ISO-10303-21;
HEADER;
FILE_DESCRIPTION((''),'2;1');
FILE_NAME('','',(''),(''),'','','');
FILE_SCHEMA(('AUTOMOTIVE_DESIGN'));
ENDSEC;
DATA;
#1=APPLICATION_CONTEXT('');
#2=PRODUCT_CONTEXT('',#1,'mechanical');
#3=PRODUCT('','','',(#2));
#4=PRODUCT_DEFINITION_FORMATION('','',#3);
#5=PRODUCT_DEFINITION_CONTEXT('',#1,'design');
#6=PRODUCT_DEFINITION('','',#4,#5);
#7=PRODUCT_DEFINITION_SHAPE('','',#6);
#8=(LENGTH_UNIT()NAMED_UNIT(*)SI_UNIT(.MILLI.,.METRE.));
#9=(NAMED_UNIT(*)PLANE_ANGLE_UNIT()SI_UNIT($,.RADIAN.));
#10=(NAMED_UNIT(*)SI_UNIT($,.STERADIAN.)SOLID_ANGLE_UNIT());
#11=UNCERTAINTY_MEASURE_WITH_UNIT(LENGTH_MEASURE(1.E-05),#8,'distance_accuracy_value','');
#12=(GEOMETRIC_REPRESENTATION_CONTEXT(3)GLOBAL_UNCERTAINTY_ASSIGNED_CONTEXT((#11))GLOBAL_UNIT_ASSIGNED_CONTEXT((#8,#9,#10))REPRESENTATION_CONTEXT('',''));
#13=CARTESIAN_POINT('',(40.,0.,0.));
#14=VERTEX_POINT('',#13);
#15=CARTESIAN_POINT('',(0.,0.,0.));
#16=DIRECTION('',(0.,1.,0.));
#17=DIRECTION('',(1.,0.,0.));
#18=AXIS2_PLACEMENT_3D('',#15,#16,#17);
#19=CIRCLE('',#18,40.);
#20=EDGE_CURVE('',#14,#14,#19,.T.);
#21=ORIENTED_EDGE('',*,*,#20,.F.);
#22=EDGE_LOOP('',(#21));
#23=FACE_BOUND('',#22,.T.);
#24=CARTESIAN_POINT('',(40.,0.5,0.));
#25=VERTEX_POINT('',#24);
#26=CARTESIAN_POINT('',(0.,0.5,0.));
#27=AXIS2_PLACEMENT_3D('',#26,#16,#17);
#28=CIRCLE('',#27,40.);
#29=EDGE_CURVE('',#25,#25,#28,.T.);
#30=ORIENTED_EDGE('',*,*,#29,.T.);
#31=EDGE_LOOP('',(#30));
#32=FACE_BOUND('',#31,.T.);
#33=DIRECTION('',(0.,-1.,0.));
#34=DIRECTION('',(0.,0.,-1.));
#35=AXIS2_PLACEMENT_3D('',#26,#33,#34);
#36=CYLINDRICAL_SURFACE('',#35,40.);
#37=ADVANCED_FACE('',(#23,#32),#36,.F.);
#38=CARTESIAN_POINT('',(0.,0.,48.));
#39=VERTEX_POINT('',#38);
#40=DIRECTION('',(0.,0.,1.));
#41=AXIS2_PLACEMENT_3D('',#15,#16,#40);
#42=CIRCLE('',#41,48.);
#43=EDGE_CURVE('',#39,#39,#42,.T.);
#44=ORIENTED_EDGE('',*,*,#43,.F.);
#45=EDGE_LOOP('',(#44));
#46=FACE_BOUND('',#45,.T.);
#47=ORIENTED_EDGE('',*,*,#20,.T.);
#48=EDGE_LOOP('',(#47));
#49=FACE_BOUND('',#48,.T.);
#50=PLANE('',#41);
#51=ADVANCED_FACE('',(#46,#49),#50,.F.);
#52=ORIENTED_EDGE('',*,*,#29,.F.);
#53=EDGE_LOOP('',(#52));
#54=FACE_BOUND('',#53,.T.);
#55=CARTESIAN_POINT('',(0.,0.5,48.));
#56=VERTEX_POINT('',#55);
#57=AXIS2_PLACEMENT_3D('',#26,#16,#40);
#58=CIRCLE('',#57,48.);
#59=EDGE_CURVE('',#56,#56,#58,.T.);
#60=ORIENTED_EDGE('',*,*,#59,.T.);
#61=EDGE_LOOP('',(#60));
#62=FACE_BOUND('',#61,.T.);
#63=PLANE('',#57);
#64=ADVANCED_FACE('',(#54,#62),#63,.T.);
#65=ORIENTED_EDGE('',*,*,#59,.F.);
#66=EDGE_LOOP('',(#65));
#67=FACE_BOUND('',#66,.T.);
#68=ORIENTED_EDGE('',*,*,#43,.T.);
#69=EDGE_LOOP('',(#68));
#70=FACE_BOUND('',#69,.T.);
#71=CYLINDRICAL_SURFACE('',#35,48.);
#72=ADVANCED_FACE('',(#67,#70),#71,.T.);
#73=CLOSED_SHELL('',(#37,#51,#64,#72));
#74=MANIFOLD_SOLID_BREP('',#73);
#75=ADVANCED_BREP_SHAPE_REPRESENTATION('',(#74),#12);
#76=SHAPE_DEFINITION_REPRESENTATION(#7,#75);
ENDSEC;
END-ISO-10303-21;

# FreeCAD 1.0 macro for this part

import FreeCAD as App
import Part
import Sketcher
Q = App.Units.Quantity

doc = App.newDocument("Part")
body = doc.addObject("PartDesign::Body", "Body")

# Sketch on XZ plane
sketch1 = doc.addObject("Sketcher::SketchObject", "Sketch")
body.addObject(sketch1)
sketch1.AttachmentSupport = (doc.XZ_Plane, [""])
sketch1.MapMode = "FlatFace"
sketch1.addGeometry([
    Part.Circle(App.Vector(0, 0, 0), App.Vector(0, 0, 1), 48),
    Part.Circle(App.Vector(0, 0, 0), App.Vector(0, 0, 1), 40),
], False)
sketch1.addConstraint([
    Sketcher.Constraint("Coincident", 0, 3, -1, 1),
    Sketcher.Constraint("Coincident", 1, 3, -1, 1),
    Sketcher.Constraint("Diameter", 0, Q("96 mm")),
    Sketcher.Constraint("Diameter", 1, Q("80 mm")),
])
pad1 = doc.addObject("PartDesign::Pad", "Pad")
body.addObject(pad1)
pad1.Profile = sketch1
pad1.Length = 0.5
pad1.Reversed = True

doc.recompute()
